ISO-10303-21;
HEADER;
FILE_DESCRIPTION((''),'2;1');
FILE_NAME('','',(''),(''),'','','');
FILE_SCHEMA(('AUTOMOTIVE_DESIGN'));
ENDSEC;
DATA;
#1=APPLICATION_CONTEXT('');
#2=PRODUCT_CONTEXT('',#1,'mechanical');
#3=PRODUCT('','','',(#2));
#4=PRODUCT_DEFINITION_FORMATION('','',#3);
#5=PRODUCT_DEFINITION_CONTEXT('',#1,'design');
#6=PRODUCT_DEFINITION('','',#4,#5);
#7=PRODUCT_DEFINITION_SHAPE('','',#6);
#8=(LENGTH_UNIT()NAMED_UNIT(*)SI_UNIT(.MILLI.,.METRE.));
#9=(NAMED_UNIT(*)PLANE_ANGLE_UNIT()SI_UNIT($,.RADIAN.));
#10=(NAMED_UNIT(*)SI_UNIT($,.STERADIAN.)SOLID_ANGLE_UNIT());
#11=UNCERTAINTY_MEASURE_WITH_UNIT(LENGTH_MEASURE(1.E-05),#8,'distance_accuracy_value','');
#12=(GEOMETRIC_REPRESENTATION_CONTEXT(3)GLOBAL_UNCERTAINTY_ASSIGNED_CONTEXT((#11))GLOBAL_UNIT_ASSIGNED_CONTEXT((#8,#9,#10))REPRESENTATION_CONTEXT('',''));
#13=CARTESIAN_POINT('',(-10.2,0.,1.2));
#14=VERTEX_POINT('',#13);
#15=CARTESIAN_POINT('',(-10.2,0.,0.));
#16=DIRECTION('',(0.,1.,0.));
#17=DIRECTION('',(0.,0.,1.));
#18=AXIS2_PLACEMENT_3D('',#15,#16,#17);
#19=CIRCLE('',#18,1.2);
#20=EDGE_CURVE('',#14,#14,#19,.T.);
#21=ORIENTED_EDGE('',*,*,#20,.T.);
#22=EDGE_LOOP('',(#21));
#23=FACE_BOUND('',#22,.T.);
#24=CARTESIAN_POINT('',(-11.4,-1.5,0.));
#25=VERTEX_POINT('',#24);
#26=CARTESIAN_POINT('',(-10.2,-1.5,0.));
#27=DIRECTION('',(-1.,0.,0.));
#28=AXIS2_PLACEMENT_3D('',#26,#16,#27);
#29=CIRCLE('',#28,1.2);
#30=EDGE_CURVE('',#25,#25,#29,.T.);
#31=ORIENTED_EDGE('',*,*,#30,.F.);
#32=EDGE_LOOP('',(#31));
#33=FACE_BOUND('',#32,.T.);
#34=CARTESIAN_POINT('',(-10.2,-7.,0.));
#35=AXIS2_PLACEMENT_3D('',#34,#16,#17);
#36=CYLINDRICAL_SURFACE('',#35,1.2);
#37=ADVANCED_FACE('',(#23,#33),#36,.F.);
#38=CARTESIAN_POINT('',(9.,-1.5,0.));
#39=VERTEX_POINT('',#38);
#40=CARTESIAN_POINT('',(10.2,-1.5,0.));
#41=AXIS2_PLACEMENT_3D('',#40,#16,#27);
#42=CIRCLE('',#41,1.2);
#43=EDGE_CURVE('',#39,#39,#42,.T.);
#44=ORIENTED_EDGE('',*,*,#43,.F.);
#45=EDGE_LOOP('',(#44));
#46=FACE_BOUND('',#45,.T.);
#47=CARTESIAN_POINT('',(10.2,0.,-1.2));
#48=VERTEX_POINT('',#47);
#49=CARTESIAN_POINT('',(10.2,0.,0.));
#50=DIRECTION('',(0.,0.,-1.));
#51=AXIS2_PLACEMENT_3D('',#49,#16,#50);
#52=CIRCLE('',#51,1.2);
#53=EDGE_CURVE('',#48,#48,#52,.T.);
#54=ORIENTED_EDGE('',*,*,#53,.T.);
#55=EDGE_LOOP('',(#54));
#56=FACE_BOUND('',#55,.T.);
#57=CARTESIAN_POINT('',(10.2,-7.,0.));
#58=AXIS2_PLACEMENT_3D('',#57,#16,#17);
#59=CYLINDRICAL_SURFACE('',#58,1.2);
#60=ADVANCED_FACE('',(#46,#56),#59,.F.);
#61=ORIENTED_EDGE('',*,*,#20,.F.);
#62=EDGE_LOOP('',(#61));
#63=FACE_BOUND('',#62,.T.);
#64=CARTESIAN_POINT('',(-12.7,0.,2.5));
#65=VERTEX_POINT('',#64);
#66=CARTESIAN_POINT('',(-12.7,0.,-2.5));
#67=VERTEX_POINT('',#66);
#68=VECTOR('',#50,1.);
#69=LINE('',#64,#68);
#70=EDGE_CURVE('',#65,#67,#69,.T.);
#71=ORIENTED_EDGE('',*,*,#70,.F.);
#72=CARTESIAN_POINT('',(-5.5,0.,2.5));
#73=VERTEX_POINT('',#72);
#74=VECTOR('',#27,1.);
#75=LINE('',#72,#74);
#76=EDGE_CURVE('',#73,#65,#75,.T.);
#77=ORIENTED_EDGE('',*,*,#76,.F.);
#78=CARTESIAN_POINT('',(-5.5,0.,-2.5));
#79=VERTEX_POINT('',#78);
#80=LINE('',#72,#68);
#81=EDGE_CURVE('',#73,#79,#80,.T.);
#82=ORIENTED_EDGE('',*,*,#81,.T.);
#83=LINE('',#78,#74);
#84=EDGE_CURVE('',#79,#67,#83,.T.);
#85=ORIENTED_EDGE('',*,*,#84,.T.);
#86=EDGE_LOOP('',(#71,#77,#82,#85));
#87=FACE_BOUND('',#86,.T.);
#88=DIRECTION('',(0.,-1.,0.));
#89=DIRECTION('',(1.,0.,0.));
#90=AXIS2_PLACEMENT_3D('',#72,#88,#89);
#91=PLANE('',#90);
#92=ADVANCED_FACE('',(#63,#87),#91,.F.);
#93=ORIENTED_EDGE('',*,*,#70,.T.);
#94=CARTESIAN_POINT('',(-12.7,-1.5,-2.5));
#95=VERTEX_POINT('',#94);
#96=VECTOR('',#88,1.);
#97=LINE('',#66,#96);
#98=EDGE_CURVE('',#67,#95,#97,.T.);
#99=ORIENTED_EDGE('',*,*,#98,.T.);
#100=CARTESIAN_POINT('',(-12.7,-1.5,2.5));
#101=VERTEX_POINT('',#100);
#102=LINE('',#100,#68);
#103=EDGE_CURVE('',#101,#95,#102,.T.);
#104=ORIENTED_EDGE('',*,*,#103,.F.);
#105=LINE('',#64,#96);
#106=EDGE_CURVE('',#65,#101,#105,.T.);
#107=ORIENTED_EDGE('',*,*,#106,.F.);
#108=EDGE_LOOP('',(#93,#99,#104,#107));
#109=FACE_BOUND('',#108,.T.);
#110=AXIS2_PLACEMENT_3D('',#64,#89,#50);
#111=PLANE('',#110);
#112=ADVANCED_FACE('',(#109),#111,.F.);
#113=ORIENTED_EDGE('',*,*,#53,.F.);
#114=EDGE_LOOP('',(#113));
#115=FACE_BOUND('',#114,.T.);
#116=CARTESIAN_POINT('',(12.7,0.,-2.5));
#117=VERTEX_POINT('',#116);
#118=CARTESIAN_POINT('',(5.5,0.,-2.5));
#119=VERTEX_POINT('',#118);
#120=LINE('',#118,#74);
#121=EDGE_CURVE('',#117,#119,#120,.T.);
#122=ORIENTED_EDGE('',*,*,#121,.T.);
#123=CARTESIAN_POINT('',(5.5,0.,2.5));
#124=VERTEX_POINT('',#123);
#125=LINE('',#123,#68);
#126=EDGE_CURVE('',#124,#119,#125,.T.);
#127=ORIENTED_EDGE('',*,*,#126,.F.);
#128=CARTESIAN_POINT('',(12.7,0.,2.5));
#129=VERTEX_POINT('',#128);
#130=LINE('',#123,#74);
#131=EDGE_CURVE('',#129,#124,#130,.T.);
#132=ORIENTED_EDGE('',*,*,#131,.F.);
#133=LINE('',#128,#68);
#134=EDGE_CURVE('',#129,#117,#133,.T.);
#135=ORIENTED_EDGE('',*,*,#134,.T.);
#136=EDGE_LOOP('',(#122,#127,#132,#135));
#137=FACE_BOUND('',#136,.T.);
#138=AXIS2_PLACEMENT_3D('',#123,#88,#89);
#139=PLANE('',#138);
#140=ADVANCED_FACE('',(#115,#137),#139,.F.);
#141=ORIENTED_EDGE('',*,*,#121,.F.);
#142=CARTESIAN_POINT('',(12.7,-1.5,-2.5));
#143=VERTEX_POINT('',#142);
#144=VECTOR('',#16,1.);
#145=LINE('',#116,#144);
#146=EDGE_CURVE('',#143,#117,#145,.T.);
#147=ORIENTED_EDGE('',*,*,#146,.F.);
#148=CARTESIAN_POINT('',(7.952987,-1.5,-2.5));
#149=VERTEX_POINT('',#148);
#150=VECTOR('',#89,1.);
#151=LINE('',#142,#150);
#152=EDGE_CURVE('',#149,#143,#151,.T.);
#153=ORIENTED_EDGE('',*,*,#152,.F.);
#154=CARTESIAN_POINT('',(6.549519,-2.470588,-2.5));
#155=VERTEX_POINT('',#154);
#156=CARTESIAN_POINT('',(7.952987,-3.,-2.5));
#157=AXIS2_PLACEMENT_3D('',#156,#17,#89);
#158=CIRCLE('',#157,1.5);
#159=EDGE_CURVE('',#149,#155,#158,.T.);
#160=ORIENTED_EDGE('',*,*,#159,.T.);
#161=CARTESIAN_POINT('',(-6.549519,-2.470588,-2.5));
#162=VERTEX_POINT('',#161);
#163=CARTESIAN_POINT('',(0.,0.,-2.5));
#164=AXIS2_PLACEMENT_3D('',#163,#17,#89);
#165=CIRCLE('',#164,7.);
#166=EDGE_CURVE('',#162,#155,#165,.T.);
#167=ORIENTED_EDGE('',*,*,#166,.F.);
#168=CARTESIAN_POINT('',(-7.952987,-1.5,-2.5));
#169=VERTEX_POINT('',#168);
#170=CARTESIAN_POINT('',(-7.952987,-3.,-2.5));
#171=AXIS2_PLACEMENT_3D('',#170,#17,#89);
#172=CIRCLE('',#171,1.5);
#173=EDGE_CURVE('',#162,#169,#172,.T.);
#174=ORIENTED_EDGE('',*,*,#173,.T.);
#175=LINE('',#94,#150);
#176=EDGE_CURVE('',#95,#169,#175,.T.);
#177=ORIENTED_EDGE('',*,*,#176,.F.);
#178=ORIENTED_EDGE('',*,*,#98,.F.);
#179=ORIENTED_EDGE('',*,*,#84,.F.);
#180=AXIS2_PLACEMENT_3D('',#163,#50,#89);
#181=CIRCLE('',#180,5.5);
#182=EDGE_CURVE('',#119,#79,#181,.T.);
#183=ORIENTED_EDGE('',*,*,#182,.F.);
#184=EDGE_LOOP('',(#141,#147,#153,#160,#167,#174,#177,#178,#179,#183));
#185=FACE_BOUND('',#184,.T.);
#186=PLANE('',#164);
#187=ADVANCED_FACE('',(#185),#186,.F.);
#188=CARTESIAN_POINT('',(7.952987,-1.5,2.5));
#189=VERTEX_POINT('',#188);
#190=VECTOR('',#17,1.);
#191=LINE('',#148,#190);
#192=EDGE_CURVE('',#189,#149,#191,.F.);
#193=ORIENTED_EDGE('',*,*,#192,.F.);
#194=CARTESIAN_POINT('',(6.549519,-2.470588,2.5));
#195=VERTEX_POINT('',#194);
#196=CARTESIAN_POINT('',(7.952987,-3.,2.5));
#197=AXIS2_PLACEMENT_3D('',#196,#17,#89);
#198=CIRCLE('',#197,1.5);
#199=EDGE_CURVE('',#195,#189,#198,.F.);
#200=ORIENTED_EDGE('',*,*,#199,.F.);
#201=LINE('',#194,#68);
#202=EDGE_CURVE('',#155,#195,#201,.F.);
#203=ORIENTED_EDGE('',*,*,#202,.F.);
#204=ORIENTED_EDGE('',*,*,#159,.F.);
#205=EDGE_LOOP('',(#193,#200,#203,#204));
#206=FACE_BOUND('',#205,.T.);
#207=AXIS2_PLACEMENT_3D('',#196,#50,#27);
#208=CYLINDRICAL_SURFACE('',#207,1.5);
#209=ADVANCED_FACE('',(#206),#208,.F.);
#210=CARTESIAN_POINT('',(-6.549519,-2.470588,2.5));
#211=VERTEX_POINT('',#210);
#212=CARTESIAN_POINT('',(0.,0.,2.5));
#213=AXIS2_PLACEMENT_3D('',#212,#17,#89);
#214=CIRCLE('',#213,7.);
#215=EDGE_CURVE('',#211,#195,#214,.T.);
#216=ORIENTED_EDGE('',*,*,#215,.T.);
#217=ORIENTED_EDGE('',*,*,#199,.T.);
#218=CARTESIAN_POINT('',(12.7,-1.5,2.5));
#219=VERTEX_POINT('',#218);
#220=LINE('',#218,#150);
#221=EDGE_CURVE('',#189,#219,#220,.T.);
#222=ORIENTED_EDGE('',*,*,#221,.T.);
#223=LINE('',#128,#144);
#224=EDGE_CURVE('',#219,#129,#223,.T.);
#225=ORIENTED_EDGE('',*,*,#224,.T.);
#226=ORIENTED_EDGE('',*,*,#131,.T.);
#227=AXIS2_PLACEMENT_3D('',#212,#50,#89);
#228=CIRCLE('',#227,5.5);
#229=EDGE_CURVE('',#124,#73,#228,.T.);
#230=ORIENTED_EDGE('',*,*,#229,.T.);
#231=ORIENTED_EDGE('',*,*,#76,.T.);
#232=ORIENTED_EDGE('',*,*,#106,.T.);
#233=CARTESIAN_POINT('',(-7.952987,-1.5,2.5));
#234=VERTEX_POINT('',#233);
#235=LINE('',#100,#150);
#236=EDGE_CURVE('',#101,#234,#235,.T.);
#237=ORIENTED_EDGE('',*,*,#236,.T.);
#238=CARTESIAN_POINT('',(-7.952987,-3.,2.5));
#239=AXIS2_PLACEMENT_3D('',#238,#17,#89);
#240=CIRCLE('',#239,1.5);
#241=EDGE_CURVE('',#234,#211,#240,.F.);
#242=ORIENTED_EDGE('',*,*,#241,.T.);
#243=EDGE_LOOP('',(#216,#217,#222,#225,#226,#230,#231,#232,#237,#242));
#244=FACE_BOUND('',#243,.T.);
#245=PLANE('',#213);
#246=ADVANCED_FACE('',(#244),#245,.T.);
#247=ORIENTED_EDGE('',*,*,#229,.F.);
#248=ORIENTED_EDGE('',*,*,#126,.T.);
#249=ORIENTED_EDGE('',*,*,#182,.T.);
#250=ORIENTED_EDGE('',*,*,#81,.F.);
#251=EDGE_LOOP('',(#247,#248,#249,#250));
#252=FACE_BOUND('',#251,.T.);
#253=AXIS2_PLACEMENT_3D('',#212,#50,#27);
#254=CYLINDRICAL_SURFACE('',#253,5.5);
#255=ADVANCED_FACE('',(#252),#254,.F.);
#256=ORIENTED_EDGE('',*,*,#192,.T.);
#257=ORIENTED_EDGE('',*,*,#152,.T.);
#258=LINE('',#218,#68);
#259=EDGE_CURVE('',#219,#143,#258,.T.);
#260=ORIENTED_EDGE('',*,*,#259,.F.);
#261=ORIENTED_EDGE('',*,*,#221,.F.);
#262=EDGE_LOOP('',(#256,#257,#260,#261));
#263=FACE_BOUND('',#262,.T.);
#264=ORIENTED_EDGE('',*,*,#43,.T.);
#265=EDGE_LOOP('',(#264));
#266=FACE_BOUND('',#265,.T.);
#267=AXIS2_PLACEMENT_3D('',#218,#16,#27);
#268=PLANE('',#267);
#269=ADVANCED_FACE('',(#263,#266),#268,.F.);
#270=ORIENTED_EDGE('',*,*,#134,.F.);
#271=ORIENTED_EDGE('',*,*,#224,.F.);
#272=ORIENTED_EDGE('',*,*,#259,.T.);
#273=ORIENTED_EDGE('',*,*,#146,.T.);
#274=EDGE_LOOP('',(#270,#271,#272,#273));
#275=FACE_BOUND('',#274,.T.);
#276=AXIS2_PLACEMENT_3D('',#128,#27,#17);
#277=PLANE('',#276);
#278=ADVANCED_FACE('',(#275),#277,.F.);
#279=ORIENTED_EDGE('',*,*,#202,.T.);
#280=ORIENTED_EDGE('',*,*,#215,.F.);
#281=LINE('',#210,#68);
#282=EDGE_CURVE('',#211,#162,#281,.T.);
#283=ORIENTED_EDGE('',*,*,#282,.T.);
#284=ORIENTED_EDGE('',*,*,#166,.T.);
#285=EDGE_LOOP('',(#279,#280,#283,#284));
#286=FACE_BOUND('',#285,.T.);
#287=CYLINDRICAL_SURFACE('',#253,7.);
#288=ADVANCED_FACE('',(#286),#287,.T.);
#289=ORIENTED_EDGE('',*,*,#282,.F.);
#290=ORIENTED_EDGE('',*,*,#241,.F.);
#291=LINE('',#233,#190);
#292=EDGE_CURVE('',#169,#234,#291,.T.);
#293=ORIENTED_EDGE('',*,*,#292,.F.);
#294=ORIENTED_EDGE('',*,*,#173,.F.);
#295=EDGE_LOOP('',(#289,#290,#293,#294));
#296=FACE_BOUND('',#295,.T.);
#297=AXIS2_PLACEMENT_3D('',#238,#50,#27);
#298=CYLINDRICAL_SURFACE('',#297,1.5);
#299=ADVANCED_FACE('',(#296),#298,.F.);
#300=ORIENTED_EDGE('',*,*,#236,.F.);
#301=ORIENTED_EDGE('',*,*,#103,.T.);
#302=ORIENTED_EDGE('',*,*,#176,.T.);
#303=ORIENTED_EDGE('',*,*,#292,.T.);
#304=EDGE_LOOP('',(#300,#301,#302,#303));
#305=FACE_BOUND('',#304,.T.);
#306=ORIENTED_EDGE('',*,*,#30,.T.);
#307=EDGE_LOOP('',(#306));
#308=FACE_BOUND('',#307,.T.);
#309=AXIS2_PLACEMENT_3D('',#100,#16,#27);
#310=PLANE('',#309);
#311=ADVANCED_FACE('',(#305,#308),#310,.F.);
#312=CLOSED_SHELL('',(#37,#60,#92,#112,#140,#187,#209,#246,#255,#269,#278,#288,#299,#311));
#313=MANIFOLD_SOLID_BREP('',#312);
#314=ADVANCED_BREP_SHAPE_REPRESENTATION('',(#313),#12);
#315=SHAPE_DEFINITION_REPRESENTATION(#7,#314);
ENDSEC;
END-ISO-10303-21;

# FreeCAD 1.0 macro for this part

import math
import FreeCAD as App
import Part
import Sketcher

V = App.Vector
Q = App.Units.Quantity


def edges_at(feature, points):
    """Names of the edges that pass closest to the given points."""
    edges = feature.Shape.Edges
    near = lambda p: min(range(len(edges)), key=lambda i: edges[i].distToShape(Part.Vertex(*p))[0])
    return sorted({f"Edge{near(p) + 1}" for p in points})

doc = App.newDocument("Part")
body = doc.addObject("PartDesign::Body", "Body")

# Sketch on XY plane
sketch1 = body.newObject("Sketcher::SketchObject", "Sketch")
sketch1.AttachmentSupport = (doc.getObject("XY_Plane"), [""])
sketch1.MapMode = "FlatFace"
sketch1.addGeometry([
    Part.LineSegment(V(12.7, 0, 0), V(5.5, 0, 0)),  # 0
    Part.ArcOfCircle(Part.Circle(V(0, 0, 0), V(0, 0, 1), 5.5), math.radians(180), math.radians(360)),  # 1
    Part.LineSegment(V(-5.5, 0, 0), V(-12.7, 0, 0)),  # 2
    Part.LineSegment(V(-12.7, 0, 0), V(-12.7, -1.5, 0)),  # 3
    Part.LineSegment(V(-12.7, -1.5, 0), V(-6.8, -1.5, 0)),  # 4
    Part.ArcOfCircle(Part.Circle(V(0, 0, 0), V(0, 0, 1), 7), math.radians(-168), math.radians(-12)),  # 5
    Part.LineSegment(V(6.8, -1.5, 0), V(12.7, -1.5, 0)),  # 6
    Part.LineSegment(V(12.7, -1.5, 0), V(12.7, 0, 0)),  # 7
], False)
sketch1.addConstraint([
    Sketcher.Constraint("Coincident", 0, 2, 1, 2),
    Sketcher.Constraint("Coincident", 1, 1, 2, 1),
    Sketcher.Constraint("Coincident", 2, 2, 3, 1),
    Sketcher.Constraint("Coincident", 3, 2, 4, 1),
    Sketcher.Constraint("Coincident", 4, 2, 5, 1),
    Sketcher.Constraint("Coincident", 5, 2, 6, 1),
    Sketcher.Constraint("Coincident", 6, 2, 7, 1),
    Sketcher.Constraint("Coincident", 7, 2, 0, 1),
    Sketcher.Constraint("Horizontal", 0),
    Sketcher.Constraint("Horizontal", 2),
    Sketcher.Constraint("Vertical", 3),
    Sketcher.Constraint("Horizontal", 4),
    Sketcher.Constraint("Horizontal", 6),
    Sketcher.Constraint("Vertical", 7),
    Sketcher.Constraint("Coincident", 1, 3, -1, 1),
    Sketcher.Constraint("Coincident", 5, 3, -1, 1),
    Sketcher.Constraint("Symmetric", 2, 2, 7, 2, -1, 1),
    Sketcher.Constraint("PointOnObject", 0, 2, -1),
    Sketcher.Constraint("Horizontal", 4, 2, 5, 2),
    Sketcher.Constraint("Radius", 5, Q("7 mm")),
    Sketcher.Constraint("Radius", 1, Q("5.5 mm")),
    Sketcher.Constraint("DistanceX", 0, 2, 0, 1, Q("7.2 mm")),
    Sketcher.Constraint("DistanceY", 3, 2, 3, 1, Q("1.5 mm")),
])
pad1 = body.newObject("PartDesign::Pad", "Pad")
pad1.Profile = sketch1
pad1.Length = 5
pad1.Midplane = True

# Sketch on XZ plane
sketch2 = body.newObject("Sketcher::SketchObject", "Sketch001")
sketch2.AttachmentSupport = (doc.getObject("XZ_Plane"), [""])
sketch2.MapMode = "FlatFace"
sketch2.addGeometry([
    Part.Circle(V(-10.2, 0, 0), V(0, 0, 1), 1.2),
    Part.Circle(V(10.2, 0, 0), V(0, 0, 1), 1.2),
], False)
sketch2.addConstraint([
    Sketcher.Constraint("Equal", 0, 1),
    Sketcher.Constraint("Symmetric", 0, 3, 1, 3, -1, 1),
    Sketcher.Constraint("PointOnObject", 0, 3, -1),
    Sketcher.Constraint("Diameter", 0, Q("2.4 mm")),
    Sketcher.Constraint("DistanceX", 0, 3, -1, 1, Q("10.2 mm")),
])
pocket1 = body.newObject("PartDesign::Pocket", "Pocket")
pocket1.Profile = sketch2
pocket1.Type = "ThroughAll"
pocket1.Reversed = True
doc.recompute()

fillet = body.newObject("PartDesign::Fillet", "Fillet")
fillet.Base = (pocket1, edges_at(pocket1, [(6.837, -1.5, 0), (-6.837, -1.5, 0)]))
fillet.Radius = 1.5

doc.recompute()
